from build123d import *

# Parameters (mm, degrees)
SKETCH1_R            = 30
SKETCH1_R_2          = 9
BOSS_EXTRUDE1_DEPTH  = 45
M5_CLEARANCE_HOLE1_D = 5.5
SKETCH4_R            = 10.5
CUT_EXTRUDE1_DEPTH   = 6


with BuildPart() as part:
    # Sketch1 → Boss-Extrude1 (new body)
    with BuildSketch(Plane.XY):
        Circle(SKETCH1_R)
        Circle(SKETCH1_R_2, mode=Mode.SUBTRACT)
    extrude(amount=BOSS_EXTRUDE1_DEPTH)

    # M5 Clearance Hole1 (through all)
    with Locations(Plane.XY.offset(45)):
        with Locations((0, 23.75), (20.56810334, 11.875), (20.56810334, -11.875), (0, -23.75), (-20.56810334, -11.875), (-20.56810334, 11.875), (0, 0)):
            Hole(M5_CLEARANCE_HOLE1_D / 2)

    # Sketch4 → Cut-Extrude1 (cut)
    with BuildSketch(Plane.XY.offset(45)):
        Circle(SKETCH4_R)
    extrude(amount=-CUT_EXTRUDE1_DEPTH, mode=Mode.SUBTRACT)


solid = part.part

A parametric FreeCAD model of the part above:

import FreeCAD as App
import Part
import Sketcher

V = App.Vector
Q = App.Units.Quantity

doc = App.newDocument("Part")
params = doc.addObject("Spreadsheet::Sheet", "Params")
for row, (alias, value) in enumerate([
    ("sketch1_diameter", "60 mm"),
    ("sketch1_diameter2", "18 mm"),
    ("pad1_length", "45 mm"),
    ("sketch2_diameter", "5.5 mm"),
    ("hole_diameter", "5.5 mm"),
    ("sketch3_diameter", "21 mm"),
    ("pocket1_length", "6 mm"),
], start=1):
    params.set(f"A{row}", alias)
    params.set(f"B{row}", "=" + value)
    params.setAlias(f"B{row}", alias)

body = doc.addObject("PartDesign::Body", "Body")

# Sketch on XY plane
sketch1 = body.newObject("Sketcher::SketchObject", "Sketch")
sketch1.AttachmentSupport = (doc.getObject("XY_Plane"), [""])
sketch1.MapMode = "FlatFace"
sketch1.addGeometry([
    Part.Circle(V(0, 0, 0), V(0, 0, 1), 30),
    Part.Circle(V(0, 0, 0), V(0, 0, 1), 9),
], False)
sketch1.addConstraint([
    Sketcher.Constraint("Coincident", 0, 3, -1, 1),
    Sketcher.Constraint("Coincident", 1, 3, -1, 1),
    Sketcher.Constraint("Diameter", 0, Q("60 mm")),
    Sketcher.Constraint("Diameter", 1, Q("18 mm")),
])
sketch1.setExpression("Constraints[2]", "Params.sketch1_diameter")
sketch1.setExpression("Constraints[3]", "Params.sketch1_diameter2")
pad1 = body.newObject("PartDesign::Pad", "Pad")
pad1.Profile = sketch1
pad1.setExpression("Length", "Params.pad1_length")

# Sketch on XY plane
sketch2 = body.newObject("Sketcher::SketchObject", "Sketch001")
sketch2.AttachmentSupport = (doc.getObject("XY_Plane"), [""])
sketch2.MapMode = "FlatFace"
sketch2.AttachmentOffset = App.Placement(V(0, 0, 45), App.Rotation())
sketch2.addGeometry([
    Part.Circle(V(0, 23.8, 0), V(0, 0, 1), 2.8),  # 0
    Part.Circle(V(20.6, 11.9, 0), V(0, 0, 1), 2.8),  # 1
    Part.Circle(V(20.6, -11.9, 0), V(0, 0, 1), 2.8),  # 2
    Part.Circle(V(0, -23.8, 0), V(0, 0, 1), 2.8),  # 3
    Part.Circle(V(-20.6, -11.9, 0), V(0, 0, 1), 2.8),  # 4
    Part.Circle(V(-20.6, 11.9, 0), V(0, 0, 1), 2.8),  # 5
    Part.Circle(V(0, 0, 0), V(0, 0, 1), 2.8),  # 6
], False)
sketch2.addConstraint([
    Sketcher.Constraint("Coincident", 6, 3, -1, 1),
    Sketcher.Constraint("Equal", 0, 1),
    Sketcher.Constraint("Equal", 1, 2),
    Sketcher.Constraint("Equal", 2, 3),
    Sketcher.Constraint("Equal", 3, 4),
    Sketcher.Constraint("Equal", 4, 5),
    Sketcher.Constraint("Equal", 5, 6),
    Sketcher.Constraint("Symmetric", 0, 3, 3, 3, -1, 1),
    Sketcher.Constraint("Symmetric", 1, 3, 4, 3, -1, 1),
    Sketcher.Constraint("Symmetric", 2, 3, 5, 3, -1, 1),
    Sketcher.Constraint("Symmetric", 2, 3, 4, 3, -2),
    Sketcher.Constraint("PointOnObject", 0, 3, -2),
    Sketcher.Constraint("Diameter", 0, Q("5.5 mm")),
    Sketcher.Constraint("DistanceY", 3, 3, 0, 3, Q("47.5 mm")),
    Sketcher.Constraint("DistanceY", 2, 3, 1, 3, Q("23.75 mm")),
    Sketcher.Constraint("DistanceX", -1, 1, 1, 3, Q("20.568103 mm")),
])
sketch2.setExpression("Constraints[12]", "Params.sketch2_diameter")
doc.recompute()
hole = body.newObject("PartDesign::Hole", "Hole")
hole.Profile = sketch2
hole.ThreadType = "None"
hole.setExpression("Diameter", "Params.hole_diameter")
hole.DepthType = "ThroughAll"

# Sketch on XY plane
sketch3 = body.newObject("Sketcher::SketchObject", "Sketch002")
sketch3.AttachmentSupport = (doc.getObject("XY_Plane"), [""])
sketch3.MapMode = "FlatFace"
sketch3.AttachmentOffset = App.Placement(V(0, 0, 45), App.Rotation())
sketch3.addGeometry(Part.Circle(V(0, 0, 0), V(0, 0, 1), 10), False)
sketch3.addConstraint([
    Sketcher.Constraint("Coincident", 0, 3, -1, 1),
    Sketcher.Constraint("Diameter", 0, Q("21 mm")),
])
sketch3.setExpression("Constraints[1]", "Params.sketch3_diameter")
pocket1 = body.newObject("PartDesign::Pocket", "Pocket")
pocket1.Profile = sketch3
pocket1.setExpression("Length", "Params.pocket1_length")

doc.recompute()
